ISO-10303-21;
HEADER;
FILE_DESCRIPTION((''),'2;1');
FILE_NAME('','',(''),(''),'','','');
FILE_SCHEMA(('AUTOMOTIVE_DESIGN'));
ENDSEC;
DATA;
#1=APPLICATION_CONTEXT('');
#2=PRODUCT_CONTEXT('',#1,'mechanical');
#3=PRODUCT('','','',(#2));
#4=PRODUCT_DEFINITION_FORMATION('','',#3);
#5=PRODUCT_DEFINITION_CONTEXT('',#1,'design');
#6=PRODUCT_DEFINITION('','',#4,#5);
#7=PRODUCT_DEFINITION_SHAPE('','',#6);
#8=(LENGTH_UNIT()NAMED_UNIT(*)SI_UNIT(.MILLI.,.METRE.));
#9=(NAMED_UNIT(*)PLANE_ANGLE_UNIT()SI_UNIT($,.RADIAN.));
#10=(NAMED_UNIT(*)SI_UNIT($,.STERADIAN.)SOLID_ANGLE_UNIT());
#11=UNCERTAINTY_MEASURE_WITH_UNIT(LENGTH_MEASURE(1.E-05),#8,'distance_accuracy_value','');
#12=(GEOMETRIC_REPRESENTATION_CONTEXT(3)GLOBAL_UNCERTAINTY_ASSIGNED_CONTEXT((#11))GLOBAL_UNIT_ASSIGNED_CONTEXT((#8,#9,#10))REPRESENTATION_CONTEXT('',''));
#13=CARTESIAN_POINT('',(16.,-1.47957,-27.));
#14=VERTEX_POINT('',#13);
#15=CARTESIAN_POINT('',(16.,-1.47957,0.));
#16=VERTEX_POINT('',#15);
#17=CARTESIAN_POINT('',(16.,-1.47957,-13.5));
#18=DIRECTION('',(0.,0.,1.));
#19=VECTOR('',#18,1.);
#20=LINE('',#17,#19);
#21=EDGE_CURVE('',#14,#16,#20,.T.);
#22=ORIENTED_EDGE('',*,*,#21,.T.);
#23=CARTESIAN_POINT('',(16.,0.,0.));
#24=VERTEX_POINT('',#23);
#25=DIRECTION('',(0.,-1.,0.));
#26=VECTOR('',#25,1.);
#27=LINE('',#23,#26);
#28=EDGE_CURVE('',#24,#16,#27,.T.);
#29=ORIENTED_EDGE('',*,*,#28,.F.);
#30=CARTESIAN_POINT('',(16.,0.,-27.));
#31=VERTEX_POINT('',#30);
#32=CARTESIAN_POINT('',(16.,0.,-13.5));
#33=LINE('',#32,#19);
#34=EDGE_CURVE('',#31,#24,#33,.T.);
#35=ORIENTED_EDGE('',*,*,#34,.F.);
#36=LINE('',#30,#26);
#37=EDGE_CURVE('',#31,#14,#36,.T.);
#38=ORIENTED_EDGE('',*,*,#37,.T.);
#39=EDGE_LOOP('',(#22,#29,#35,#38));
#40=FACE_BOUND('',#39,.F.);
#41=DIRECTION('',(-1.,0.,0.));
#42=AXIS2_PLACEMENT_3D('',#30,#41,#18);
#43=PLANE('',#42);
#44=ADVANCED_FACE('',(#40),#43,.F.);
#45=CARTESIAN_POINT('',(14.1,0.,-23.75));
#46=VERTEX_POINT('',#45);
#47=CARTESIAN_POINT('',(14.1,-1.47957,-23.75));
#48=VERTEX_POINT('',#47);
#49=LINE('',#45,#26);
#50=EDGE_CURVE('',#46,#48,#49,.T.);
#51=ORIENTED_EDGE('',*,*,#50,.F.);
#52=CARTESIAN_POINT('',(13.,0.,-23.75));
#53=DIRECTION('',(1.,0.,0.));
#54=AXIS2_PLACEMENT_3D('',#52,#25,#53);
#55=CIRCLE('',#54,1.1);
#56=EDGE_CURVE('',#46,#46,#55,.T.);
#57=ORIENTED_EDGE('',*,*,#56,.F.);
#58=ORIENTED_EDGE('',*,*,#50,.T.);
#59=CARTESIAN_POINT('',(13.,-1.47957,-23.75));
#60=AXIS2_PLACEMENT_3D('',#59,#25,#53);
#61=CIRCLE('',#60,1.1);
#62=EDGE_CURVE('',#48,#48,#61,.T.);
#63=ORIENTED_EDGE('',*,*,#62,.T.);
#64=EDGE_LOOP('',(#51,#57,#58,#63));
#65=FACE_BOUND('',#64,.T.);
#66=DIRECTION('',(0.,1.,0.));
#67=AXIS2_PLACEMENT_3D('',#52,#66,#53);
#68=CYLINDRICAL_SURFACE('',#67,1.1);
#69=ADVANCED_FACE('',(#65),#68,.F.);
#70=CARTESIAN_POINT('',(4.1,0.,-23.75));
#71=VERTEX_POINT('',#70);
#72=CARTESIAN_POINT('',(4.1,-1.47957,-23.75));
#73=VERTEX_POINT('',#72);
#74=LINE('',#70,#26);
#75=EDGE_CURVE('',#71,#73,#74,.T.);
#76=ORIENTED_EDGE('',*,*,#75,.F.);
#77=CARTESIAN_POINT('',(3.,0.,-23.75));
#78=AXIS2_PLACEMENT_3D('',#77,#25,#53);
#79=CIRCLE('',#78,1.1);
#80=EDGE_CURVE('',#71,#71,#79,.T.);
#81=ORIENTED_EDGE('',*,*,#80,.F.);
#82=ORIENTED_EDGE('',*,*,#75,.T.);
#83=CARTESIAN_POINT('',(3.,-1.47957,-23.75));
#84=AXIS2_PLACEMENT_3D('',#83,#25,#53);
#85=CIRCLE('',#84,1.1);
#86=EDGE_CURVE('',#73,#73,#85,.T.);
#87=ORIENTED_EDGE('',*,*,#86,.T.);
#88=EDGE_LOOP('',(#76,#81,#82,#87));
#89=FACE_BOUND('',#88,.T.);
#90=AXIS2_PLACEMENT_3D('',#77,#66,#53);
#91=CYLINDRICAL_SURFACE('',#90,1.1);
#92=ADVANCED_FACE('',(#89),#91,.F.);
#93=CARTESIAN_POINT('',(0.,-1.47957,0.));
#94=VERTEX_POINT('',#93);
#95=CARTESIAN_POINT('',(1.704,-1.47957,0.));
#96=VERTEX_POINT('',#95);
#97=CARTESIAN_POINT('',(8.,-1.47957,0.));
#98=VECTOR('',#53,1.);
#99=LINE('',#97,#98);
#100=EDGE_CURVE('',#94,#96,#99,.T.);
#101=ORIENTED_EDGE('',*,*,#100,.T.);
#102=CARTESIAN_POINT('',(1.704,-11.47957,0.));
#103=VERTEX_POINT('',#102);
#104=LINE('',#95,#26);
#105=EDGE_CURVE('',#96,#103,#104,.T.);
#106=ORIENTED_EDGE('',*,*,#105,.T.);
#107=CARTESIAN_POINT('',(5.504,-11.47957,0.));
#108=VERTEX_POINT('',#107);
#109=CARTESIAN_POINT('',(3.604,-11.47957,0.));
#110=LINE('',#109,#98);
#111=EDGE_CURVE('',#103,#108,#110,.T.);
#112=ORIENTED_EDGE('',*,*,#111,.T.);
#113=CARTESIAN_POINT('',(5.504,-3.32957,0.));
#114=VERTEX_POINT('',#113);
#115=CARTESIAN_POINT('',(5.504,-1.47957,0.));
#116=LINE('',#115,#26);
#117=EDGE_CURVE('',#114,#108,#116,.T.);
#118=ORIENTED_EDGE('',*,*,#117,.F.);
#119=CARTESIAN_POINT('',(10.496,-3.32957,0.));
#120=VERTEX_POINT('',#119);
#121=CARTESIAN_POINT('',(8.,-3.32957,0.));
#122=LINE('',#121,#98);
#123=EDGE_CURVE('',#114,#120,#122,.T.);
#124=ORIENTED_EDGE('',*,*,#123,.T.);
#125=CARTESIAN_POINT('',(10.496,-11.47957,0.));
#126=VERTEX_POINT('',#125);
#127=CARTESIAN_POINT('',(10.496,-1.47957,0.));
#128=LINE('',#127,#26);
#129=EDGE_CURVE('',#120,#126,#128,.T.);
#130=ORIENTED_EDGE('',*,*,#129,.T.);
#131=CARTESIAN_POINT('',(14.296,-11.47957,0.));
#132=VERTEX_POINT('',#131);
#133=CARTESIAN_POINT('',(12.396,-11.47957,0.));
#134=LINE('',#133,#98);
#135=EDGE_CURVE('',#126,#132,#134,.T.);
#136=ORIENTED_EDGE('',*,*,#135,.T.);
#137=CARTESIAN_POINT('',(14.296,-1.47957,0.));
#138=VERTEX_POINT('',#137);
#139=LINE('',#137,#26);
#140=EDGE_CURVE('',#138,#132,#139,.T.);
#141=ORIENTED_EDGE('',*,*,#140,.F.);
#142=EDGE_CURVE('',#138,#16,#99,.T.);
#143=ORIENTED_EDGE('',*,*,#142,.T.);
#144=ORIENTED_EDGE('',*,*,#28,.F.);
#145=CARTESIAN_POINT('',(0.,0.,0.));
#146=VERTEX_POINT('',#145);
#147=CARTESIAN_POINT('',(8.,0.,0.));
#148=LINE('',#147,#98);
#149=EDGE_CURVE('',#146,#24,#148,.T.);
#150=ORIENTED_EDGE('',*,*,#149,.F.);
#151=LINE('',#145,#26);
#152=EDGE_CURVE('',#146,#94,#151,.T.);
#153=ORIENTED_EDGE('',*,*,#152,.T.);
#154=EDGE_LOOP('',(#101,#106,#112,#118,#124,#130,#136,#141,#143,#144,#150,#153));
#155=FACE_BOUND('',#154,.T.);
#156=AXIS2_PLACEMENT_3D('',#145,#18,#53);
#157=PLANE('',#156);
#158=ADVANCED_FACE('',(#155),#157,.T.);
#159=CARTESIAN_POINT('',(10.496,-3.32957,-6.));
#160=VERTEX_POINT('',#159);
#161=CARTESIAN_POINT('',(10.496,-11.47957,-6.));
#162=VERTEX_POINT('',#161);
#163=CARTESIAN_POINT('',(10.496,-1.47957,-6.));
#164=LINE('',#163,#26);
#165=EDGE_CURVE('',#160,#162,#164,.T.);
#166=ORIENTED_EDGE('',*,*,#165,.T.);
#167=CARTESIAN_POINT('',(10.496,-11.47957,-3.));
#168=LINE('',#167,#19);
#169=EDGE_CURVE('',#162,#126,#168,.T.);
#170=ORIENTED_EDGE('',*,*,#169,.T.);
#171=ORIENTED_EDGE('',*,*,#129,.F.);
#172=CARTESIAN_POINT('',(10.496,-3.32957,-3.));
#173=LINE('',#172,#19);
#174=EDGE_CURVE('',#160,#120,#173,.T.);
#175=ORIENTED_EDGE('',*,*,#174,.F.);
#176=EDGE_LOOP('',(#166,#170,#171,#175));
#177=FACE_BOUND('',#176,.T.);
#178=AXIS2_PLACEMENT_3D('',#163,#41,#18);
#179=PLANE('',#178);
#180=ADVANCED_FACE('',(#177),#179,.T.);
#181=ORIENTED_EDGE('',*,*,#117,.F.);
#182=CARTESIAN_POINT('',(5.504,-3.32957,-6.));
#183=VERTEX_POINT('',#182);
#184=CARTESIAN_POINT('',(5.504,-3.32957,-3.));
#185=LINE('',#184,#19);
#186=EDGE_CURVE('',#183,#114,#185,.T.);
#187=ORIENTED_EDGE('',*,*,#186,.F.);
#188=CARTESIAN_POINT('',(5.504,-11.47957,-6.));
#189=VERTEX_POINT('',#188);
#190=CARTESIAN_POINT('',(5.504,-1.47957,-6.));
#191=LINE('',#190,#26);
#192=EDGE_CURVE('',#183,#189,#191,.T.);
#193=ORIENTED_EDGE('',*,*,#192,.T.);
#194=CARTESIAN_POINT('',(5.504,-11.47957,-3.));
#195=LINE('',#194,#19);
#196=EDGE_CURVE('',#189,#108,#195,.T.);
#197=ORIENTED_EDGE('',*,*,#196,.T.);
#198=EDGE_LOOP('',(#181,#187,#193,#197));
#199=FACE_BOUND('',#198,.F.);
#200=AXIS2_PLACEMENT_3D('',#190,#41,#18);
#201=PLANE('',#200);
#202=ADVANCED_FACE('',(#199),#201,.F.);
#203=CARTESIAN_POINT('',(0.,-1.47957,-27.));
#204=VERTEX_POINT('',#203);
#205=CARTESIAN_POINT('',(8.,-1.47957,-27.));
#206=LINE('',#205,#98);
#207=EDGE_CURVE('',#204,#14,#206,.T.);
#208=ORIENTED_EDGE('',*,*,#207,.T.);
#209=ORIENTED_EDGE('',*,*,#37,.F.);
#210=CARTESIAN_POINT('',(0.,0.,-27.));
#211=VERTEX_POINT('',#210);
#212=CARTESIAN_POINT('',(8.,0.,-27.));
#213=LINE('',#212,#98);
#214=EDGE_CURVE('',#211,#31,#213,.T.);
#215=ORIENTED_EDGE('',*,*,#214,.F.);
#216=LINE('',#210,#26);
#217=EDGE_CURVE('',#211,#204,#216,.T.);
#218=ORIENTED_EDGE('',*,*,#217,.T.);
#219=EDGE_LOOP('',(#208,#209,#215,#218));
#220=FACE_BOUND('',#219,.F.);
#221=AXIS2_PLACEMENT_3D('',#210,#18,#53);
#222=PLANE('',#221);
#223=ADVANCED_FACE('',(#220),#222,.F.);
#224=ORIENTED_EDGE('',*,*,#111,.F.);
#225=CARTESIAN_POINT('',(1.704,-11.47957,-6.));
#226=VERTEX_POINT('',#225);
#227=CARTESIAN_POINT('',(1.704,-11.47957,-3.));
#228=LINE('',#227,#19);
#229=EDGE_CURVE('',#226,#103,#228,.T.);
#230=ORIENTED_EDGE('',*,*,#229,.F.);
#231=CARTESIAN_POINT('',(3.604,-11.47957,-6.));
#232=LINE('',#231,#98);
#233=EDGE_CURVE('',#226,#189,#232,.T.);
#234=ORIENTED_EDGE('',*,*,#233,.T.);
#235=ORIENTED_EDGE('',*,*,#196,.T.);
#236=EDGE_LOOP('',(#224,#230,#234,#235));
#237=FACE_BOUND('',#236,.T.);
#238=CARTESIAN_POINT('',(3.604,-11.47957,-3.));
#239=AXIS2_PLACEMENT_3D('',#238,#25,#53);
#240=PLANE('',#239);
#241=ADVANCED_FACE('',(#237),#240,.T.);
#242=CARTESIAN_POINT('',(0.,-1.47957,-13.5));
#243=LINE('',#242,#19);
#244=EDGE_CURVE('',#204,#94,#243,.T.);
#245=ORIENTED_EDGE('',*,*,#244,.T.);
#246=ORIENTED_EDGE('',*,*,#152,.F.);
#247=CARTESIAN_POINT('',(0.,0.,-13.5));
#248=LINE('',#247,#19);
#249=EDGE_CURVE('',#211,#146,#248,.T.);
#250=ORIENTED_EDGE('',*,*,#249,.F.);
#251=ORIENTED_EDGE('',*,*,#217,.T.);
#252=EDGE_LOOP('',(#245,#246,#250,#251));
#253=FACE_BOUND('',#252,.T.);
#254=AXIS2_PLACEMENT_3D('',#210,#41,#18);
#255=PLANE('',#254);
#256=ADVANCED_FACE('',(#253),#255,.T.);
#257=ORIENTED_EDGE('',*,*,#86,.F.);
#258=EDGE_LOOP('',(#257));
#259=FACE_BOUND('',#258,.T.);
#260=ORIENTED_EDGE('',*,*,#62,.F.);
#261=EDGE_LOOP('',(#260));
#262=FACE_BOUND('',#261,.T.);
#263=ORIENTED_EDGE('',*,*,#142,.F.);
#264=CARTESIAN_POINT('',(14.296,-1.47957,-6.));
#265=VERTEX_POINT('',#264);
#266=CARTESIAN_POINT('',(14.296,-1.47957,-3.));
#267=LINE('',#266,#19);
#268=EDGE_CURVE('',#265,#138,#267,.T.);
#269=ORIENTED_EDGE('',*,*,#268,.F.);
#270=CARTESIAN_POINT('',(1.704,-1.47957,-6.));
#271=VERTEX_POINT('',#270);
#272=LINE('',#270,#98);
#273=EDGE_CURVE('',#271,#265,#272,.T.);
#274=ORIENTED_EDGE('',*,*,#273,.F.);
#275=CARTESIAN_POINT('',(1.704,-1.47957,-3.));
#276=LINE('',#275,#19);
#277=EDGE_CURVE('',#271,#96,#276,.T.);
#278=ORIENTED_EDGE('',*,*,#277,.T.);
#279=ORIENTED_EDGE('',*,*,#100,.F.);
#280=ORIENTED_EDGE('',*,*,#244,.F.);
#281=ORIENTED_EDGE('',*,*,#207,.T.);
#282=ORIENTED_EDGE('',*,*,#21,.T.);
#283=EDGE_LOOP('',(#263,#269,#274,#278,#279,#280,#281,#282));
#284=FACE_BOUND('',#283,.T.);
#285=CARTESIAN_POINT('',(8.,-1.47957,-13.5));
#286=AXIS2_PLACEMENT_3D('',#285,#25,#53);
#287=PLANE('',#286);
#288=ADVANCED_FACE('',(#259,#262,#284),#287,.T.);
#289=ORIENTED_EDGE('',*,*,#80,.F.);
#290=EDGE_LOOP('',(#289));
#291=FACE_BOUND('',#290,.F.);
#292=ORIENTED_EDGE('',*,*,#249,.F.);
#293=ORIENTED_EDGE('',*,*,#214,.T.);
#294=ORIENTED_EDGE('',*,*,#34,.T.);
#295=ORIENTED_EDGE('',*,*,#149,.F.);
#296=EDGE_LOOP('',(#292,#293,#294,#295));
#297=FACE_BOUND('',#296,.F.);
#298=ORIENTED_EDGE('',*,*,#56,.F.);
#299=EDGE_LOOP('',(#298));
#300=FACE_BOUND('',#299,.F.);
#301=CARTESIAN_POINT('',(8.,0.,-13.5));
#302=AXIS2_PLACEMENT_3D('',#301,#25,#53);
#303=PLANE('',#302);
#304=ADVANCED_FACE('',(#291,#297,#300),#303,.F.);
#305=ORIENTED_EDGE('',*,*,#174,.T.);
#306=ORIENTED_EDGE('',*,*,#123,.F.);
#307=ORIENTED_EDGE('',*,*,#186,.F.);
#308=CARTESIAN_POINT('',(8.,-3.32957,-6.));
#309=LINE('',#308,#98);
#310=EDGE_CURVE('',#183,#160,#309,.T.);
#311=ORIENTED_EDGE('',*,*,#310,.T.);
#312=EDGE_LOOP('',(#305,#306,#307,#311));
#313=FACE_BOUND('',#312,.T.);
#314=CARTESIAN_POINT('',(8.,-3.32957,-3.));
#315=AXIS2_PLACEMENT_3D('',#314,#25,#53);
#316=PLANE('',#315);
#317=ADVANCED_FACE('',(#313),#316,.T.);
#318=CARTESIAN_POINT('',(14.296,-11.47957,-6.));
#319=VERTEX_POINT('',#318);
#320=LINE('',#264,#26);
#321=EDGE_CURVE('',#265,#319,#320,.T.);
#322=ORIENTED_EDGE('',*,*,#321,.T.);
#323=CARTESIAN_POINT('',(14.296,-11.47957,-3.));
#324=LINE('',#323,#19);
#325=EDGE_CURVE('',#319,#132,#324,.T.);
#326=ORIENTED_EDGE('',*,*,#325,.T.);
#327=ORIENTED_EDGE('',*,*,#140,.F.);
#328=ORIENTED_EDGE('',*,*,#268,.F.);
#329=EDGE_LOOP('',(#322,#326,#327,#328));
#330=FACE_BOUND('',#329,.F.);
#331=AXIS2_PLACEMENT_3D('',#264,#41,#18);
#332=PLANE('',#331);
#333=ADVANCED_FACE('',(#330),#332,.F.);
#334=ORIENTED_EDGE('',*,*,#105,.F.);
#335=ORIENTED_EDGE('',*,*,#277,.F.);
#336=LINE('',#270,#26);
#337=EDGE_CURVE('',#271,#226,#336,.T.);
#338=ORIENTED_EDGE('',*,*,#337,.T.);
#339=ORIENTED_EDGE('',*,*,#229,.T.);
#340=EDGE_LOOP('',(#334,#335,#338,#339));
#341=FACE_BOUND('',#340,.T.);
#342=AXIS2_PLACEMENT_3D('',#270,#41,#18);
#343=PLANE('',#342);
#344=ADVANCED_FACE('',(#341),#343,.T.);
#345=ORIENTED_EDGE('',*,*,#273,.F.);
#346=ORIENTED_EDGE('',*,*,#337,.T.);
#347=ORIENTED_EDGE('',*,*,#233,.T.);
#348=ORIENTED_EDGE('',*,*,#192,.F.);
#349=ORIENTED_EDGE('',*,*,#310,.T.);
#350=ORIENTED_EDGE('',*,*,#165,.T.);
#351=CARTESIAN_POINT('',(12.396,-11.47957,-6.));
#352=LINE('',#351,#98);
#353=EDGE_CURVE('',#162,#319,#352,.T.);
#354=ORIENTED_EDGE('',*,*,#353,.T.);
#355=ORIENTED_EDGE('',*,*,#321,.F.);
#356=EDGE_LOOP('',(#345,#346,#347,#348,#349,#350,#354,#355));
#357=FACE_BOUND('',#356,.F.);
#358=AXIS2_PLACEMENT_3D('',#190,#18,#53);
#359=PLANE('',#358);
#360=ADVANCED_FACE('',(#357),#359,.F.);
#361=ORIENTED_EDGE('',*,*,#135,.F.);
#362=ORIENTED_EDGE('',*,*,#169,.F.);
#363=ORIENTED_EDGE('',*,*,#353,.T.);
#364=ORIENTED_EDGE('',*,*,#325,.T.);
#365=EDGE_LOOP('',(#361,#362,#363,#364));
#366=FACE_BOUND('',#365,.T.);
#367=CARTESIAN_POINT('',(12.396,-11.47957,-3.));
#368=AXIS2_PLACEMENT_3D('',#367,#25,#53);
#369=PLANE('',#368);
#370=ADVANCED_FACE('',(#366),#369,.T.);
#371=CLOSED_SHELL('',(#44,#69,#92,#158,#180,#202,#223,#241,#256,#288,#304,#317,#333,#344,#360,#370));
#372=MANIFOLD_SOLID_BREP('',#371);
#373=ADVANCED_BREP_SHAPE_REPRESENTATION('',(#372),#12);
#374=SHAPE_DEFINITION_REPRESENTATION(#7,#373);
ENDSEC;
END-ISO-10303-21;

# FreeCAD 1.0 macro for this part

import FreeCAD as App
import Part
import Sketcher
from FreeCAD import Vector

doc = App.newDocument("Part")
body = doc.addObject("PartDesign::Body", "Body")

sketch1 = body.newObject("Sketcher::SketchObject", "Sketch")
sketch1.AttachmentSupport = (doc.getObject("XZ_Plane"), [""])
sketch1.MapMode = "FlatFace"
sketch1.addGeometry([
    Part.LineSegment(Vector(0, 0, 0), Vector(0, -27, 0)),
    Part.LineSegment(Vector(0, -27, 0), Vector(16, -27, 0)),
    Part.LineSegment(Vector(16, -27, 0), Vector(16, 0, 0)),
    Part.LineSegment(Vector(16, 0, 0), Vector(0, 0, 0)),
    Part.Circle(Vector(3, -23.8, 0), Vector(0, 0, 1), 1.1),
    Part.Circle(Vector(13, -23.8, 0), Vector(0, 0, 1), 1.1),
], False)
sketch1.addConstraint([
    Sketcher.Constraint("Coincident", 0, 2, 1, 1),
    Sketcher.Constraint("Coincident", 1, 2, 2, 1),
    Sketcher.Constraint("Coincident", 2, 2, 3, 1),
    Sketcher.Constraint("Coincident", 3, 2, 0, 1),
    Sketcher.Constraint("Vertical", 0),
    Sketcher.Constraint("Horizontal", 1),
    Sketcher.Constraint("Vertical", 2),
    Sketcher.Constraint("Horizontal", 3),
    Sketcher.Constraint("Coincident", 3, 2, -1, 1),
    Sketcher.Constraint("Equal", 4, 5),
    Sketcher.Constraint("Horizontal", 4, 3, 5, 3),
    Sketcher.Constraint("Diameter", 4, 2.2),
    Sketcher.Constraint("DistanceX", 1, 1, 1, 2, 16.0),
    Sketcher.Constraint("DistanceY", 0, 2, 0, 1, 27.0),
    Sketcher.Constraint("DistanceX", -1, 1, 4, 3, 3.0),
    Sketcher.Constraint("DistanceX", -1, 1, 5, 3, 13.0),
    Sketcher.Constraint("DistanceY", 4, 3, -1, 1, 23.75),
])
pad1 = body.newObject("PartDesign::Pad", "Pad")
pad1.Profile = sketch1
pad1.Length = 1.47957

sketch2 = body.newObject("Sketcher::SketchObject", "Sketch001")
sketch2.AttachmentSupport = (doc.getObject("XZ_Plane"), [""])
sketch2.MapMode = "FlatFace"
sketch2.AttachmentOffset = App.Placement(Vector(0, 0, 1.47957), App.Rotation())
sketch2.addGeometry([
    Part.LineSegment(Vector(1.7, 0, 0), Vector(1.7, -6, 0)),
    Part.LineSegment(Vector(1.7, -6, 0), Vector(5.5, -6, 0)),
    Part.LineSegment(Vector(5.5, -6, 0), Vector(5.5, 0, 0)),
    Part.LineSegment(Vector(5.5, 0, 0), Vector(1.7, 0, 0)),
    Part.LineSegment(Vector(10.5, 0, 0), Vector(10.5, -6, 0)),
    Part.LineSegment(Vector(10.5, -6, 0), Vector(14.3, -6, 0)),
    Part.LineSegment(Vector(14.3, -6, 0), Vector(14.3, 0, 0)),
    Part.LineSegment(Vector(14.3, 0, 0), Vector(10.5, 0, 0)),
], False)
sketch2.addConstraint([
    Sketcher.Constraint("Coincident", 0, 2, 1, 1),
    Sketcher.Constraint("Coincident", 1, 2, 2, 1),
    Sketcher.Constraint("Coincident", 2, 2, 3, 1),
    Sketcher.Constraint("Coincident", 3, 2, 0, 1),
    Sketcher.Constraint("Coincident", 4, 2, 5, 1),
    Sketcher.Constraint("Coincident", 5, 2, 6, 1),
    Sketcher.Constraint("Coincident", 6, 2, 7, 1),
    Sketcher.Constraint("Coincident", 7, 2, 4, 1),
    Sketcher.Constraint("Vertical", 0),
    Sketcher.Constraint("Horizontal", 1),
    Sketcher.Constraint("Vertical", 2),
    Sketcher.Constraint("Horizontal", 3),
    Sketcher.Constraint("Vertical", 4),
    Sketcher.Constraint("Horizontal", 5),
    Sketcher.Constraint("Vertical", 6),
    Sketcher.Constraint("Horizontal", 7),
    Sketcher.Constraint("PointOnObject", 2, 2, -1),
    Sketcher.Constraint("PointOnObject", 6, 2, -1),
    Sketcher.Constraint("Horizontal", 1, 2, 4, 2),
    Sketcher.Constraint("Equal", 3, 5),
    Sketcher.Constraint("DistanceY", 0, 2, 0, 1, 6.0),
    Sketcher.Constraint("DistanceX", 1, 1, 1, 2, 3.8),
    Sketcher.Constraint("DistanceX", -1, 1, 0, 2, 1.704),
    Sketcher.Constraint("DistanceX", -1, 1, 4, 2, 10.496),
])
pad2 = body.newObject("PartDesign::Pad", "Pad001")
pad2.Profile = sketch2
pad2.Length = 10

sketch3 = body.newObject("Sketcher::SketchObject", "Sketch002")
sketch3.AttachmentSupport = (doc.getObject("XZ_Plane"), [""])
sketch3.MapMode = "FlatFace"
sketch3.AttachmentOffset = App.Placement(Vector(0, 0, 1.47957), App.Rotation())
sketch3.addGeometry([
    Part.LineSegment(Vector(5.5, 0, 0), Vector(5.5, -6, 0)),
    Part.LineSegment(Vector(5.5, -6, 0), Vector(10.5, -6, 0)),
    Part.LineSegment(Vector(10.5, -6, 0), Vector(10.5, 0, 0)),
    Part.LineSegment(Vector(10.5, 0, 0), Vector(5.5, 0, 0)),
], False)
sketch3.addConstraint([
    Sketcher.Constraint("Coincident", 0, 2, 1, 1),
    Sketcher.Constraint("Coincident", 1, 2, 2, 1),
    Sketcher.Constraint("Coincident", 2, 2, 3, 1),
    Sketcher.Constraint("Coincident", 3, 2, 0, 1),
    Sketcher.Constraint("Vertical", 0),
    Sketcher.Constraint("Horizontal", 1),
    Sketcher.Constraint("Vertical", 2),
    Sketcher.Constraint("Horizontal", 3),
    Sketcher.Constraint("PointOnObject", 2, 2, -1),
    Sketcher.Constraint("DistanceY", 0, 2, 0, 1, 6.0),
    Sketcher.Constraint("DistanceX", 1, 1, 1, 2, 4.992),
    Sketcher.Constraint("DistanceX", -1, 1, 0, 2, 5.504),
])
pad3 = body.newObject("PartDesign::Pad", "Pad002")
pad3.Profile = sketch3
pad3.Length = 1.85

doc.recompute()
